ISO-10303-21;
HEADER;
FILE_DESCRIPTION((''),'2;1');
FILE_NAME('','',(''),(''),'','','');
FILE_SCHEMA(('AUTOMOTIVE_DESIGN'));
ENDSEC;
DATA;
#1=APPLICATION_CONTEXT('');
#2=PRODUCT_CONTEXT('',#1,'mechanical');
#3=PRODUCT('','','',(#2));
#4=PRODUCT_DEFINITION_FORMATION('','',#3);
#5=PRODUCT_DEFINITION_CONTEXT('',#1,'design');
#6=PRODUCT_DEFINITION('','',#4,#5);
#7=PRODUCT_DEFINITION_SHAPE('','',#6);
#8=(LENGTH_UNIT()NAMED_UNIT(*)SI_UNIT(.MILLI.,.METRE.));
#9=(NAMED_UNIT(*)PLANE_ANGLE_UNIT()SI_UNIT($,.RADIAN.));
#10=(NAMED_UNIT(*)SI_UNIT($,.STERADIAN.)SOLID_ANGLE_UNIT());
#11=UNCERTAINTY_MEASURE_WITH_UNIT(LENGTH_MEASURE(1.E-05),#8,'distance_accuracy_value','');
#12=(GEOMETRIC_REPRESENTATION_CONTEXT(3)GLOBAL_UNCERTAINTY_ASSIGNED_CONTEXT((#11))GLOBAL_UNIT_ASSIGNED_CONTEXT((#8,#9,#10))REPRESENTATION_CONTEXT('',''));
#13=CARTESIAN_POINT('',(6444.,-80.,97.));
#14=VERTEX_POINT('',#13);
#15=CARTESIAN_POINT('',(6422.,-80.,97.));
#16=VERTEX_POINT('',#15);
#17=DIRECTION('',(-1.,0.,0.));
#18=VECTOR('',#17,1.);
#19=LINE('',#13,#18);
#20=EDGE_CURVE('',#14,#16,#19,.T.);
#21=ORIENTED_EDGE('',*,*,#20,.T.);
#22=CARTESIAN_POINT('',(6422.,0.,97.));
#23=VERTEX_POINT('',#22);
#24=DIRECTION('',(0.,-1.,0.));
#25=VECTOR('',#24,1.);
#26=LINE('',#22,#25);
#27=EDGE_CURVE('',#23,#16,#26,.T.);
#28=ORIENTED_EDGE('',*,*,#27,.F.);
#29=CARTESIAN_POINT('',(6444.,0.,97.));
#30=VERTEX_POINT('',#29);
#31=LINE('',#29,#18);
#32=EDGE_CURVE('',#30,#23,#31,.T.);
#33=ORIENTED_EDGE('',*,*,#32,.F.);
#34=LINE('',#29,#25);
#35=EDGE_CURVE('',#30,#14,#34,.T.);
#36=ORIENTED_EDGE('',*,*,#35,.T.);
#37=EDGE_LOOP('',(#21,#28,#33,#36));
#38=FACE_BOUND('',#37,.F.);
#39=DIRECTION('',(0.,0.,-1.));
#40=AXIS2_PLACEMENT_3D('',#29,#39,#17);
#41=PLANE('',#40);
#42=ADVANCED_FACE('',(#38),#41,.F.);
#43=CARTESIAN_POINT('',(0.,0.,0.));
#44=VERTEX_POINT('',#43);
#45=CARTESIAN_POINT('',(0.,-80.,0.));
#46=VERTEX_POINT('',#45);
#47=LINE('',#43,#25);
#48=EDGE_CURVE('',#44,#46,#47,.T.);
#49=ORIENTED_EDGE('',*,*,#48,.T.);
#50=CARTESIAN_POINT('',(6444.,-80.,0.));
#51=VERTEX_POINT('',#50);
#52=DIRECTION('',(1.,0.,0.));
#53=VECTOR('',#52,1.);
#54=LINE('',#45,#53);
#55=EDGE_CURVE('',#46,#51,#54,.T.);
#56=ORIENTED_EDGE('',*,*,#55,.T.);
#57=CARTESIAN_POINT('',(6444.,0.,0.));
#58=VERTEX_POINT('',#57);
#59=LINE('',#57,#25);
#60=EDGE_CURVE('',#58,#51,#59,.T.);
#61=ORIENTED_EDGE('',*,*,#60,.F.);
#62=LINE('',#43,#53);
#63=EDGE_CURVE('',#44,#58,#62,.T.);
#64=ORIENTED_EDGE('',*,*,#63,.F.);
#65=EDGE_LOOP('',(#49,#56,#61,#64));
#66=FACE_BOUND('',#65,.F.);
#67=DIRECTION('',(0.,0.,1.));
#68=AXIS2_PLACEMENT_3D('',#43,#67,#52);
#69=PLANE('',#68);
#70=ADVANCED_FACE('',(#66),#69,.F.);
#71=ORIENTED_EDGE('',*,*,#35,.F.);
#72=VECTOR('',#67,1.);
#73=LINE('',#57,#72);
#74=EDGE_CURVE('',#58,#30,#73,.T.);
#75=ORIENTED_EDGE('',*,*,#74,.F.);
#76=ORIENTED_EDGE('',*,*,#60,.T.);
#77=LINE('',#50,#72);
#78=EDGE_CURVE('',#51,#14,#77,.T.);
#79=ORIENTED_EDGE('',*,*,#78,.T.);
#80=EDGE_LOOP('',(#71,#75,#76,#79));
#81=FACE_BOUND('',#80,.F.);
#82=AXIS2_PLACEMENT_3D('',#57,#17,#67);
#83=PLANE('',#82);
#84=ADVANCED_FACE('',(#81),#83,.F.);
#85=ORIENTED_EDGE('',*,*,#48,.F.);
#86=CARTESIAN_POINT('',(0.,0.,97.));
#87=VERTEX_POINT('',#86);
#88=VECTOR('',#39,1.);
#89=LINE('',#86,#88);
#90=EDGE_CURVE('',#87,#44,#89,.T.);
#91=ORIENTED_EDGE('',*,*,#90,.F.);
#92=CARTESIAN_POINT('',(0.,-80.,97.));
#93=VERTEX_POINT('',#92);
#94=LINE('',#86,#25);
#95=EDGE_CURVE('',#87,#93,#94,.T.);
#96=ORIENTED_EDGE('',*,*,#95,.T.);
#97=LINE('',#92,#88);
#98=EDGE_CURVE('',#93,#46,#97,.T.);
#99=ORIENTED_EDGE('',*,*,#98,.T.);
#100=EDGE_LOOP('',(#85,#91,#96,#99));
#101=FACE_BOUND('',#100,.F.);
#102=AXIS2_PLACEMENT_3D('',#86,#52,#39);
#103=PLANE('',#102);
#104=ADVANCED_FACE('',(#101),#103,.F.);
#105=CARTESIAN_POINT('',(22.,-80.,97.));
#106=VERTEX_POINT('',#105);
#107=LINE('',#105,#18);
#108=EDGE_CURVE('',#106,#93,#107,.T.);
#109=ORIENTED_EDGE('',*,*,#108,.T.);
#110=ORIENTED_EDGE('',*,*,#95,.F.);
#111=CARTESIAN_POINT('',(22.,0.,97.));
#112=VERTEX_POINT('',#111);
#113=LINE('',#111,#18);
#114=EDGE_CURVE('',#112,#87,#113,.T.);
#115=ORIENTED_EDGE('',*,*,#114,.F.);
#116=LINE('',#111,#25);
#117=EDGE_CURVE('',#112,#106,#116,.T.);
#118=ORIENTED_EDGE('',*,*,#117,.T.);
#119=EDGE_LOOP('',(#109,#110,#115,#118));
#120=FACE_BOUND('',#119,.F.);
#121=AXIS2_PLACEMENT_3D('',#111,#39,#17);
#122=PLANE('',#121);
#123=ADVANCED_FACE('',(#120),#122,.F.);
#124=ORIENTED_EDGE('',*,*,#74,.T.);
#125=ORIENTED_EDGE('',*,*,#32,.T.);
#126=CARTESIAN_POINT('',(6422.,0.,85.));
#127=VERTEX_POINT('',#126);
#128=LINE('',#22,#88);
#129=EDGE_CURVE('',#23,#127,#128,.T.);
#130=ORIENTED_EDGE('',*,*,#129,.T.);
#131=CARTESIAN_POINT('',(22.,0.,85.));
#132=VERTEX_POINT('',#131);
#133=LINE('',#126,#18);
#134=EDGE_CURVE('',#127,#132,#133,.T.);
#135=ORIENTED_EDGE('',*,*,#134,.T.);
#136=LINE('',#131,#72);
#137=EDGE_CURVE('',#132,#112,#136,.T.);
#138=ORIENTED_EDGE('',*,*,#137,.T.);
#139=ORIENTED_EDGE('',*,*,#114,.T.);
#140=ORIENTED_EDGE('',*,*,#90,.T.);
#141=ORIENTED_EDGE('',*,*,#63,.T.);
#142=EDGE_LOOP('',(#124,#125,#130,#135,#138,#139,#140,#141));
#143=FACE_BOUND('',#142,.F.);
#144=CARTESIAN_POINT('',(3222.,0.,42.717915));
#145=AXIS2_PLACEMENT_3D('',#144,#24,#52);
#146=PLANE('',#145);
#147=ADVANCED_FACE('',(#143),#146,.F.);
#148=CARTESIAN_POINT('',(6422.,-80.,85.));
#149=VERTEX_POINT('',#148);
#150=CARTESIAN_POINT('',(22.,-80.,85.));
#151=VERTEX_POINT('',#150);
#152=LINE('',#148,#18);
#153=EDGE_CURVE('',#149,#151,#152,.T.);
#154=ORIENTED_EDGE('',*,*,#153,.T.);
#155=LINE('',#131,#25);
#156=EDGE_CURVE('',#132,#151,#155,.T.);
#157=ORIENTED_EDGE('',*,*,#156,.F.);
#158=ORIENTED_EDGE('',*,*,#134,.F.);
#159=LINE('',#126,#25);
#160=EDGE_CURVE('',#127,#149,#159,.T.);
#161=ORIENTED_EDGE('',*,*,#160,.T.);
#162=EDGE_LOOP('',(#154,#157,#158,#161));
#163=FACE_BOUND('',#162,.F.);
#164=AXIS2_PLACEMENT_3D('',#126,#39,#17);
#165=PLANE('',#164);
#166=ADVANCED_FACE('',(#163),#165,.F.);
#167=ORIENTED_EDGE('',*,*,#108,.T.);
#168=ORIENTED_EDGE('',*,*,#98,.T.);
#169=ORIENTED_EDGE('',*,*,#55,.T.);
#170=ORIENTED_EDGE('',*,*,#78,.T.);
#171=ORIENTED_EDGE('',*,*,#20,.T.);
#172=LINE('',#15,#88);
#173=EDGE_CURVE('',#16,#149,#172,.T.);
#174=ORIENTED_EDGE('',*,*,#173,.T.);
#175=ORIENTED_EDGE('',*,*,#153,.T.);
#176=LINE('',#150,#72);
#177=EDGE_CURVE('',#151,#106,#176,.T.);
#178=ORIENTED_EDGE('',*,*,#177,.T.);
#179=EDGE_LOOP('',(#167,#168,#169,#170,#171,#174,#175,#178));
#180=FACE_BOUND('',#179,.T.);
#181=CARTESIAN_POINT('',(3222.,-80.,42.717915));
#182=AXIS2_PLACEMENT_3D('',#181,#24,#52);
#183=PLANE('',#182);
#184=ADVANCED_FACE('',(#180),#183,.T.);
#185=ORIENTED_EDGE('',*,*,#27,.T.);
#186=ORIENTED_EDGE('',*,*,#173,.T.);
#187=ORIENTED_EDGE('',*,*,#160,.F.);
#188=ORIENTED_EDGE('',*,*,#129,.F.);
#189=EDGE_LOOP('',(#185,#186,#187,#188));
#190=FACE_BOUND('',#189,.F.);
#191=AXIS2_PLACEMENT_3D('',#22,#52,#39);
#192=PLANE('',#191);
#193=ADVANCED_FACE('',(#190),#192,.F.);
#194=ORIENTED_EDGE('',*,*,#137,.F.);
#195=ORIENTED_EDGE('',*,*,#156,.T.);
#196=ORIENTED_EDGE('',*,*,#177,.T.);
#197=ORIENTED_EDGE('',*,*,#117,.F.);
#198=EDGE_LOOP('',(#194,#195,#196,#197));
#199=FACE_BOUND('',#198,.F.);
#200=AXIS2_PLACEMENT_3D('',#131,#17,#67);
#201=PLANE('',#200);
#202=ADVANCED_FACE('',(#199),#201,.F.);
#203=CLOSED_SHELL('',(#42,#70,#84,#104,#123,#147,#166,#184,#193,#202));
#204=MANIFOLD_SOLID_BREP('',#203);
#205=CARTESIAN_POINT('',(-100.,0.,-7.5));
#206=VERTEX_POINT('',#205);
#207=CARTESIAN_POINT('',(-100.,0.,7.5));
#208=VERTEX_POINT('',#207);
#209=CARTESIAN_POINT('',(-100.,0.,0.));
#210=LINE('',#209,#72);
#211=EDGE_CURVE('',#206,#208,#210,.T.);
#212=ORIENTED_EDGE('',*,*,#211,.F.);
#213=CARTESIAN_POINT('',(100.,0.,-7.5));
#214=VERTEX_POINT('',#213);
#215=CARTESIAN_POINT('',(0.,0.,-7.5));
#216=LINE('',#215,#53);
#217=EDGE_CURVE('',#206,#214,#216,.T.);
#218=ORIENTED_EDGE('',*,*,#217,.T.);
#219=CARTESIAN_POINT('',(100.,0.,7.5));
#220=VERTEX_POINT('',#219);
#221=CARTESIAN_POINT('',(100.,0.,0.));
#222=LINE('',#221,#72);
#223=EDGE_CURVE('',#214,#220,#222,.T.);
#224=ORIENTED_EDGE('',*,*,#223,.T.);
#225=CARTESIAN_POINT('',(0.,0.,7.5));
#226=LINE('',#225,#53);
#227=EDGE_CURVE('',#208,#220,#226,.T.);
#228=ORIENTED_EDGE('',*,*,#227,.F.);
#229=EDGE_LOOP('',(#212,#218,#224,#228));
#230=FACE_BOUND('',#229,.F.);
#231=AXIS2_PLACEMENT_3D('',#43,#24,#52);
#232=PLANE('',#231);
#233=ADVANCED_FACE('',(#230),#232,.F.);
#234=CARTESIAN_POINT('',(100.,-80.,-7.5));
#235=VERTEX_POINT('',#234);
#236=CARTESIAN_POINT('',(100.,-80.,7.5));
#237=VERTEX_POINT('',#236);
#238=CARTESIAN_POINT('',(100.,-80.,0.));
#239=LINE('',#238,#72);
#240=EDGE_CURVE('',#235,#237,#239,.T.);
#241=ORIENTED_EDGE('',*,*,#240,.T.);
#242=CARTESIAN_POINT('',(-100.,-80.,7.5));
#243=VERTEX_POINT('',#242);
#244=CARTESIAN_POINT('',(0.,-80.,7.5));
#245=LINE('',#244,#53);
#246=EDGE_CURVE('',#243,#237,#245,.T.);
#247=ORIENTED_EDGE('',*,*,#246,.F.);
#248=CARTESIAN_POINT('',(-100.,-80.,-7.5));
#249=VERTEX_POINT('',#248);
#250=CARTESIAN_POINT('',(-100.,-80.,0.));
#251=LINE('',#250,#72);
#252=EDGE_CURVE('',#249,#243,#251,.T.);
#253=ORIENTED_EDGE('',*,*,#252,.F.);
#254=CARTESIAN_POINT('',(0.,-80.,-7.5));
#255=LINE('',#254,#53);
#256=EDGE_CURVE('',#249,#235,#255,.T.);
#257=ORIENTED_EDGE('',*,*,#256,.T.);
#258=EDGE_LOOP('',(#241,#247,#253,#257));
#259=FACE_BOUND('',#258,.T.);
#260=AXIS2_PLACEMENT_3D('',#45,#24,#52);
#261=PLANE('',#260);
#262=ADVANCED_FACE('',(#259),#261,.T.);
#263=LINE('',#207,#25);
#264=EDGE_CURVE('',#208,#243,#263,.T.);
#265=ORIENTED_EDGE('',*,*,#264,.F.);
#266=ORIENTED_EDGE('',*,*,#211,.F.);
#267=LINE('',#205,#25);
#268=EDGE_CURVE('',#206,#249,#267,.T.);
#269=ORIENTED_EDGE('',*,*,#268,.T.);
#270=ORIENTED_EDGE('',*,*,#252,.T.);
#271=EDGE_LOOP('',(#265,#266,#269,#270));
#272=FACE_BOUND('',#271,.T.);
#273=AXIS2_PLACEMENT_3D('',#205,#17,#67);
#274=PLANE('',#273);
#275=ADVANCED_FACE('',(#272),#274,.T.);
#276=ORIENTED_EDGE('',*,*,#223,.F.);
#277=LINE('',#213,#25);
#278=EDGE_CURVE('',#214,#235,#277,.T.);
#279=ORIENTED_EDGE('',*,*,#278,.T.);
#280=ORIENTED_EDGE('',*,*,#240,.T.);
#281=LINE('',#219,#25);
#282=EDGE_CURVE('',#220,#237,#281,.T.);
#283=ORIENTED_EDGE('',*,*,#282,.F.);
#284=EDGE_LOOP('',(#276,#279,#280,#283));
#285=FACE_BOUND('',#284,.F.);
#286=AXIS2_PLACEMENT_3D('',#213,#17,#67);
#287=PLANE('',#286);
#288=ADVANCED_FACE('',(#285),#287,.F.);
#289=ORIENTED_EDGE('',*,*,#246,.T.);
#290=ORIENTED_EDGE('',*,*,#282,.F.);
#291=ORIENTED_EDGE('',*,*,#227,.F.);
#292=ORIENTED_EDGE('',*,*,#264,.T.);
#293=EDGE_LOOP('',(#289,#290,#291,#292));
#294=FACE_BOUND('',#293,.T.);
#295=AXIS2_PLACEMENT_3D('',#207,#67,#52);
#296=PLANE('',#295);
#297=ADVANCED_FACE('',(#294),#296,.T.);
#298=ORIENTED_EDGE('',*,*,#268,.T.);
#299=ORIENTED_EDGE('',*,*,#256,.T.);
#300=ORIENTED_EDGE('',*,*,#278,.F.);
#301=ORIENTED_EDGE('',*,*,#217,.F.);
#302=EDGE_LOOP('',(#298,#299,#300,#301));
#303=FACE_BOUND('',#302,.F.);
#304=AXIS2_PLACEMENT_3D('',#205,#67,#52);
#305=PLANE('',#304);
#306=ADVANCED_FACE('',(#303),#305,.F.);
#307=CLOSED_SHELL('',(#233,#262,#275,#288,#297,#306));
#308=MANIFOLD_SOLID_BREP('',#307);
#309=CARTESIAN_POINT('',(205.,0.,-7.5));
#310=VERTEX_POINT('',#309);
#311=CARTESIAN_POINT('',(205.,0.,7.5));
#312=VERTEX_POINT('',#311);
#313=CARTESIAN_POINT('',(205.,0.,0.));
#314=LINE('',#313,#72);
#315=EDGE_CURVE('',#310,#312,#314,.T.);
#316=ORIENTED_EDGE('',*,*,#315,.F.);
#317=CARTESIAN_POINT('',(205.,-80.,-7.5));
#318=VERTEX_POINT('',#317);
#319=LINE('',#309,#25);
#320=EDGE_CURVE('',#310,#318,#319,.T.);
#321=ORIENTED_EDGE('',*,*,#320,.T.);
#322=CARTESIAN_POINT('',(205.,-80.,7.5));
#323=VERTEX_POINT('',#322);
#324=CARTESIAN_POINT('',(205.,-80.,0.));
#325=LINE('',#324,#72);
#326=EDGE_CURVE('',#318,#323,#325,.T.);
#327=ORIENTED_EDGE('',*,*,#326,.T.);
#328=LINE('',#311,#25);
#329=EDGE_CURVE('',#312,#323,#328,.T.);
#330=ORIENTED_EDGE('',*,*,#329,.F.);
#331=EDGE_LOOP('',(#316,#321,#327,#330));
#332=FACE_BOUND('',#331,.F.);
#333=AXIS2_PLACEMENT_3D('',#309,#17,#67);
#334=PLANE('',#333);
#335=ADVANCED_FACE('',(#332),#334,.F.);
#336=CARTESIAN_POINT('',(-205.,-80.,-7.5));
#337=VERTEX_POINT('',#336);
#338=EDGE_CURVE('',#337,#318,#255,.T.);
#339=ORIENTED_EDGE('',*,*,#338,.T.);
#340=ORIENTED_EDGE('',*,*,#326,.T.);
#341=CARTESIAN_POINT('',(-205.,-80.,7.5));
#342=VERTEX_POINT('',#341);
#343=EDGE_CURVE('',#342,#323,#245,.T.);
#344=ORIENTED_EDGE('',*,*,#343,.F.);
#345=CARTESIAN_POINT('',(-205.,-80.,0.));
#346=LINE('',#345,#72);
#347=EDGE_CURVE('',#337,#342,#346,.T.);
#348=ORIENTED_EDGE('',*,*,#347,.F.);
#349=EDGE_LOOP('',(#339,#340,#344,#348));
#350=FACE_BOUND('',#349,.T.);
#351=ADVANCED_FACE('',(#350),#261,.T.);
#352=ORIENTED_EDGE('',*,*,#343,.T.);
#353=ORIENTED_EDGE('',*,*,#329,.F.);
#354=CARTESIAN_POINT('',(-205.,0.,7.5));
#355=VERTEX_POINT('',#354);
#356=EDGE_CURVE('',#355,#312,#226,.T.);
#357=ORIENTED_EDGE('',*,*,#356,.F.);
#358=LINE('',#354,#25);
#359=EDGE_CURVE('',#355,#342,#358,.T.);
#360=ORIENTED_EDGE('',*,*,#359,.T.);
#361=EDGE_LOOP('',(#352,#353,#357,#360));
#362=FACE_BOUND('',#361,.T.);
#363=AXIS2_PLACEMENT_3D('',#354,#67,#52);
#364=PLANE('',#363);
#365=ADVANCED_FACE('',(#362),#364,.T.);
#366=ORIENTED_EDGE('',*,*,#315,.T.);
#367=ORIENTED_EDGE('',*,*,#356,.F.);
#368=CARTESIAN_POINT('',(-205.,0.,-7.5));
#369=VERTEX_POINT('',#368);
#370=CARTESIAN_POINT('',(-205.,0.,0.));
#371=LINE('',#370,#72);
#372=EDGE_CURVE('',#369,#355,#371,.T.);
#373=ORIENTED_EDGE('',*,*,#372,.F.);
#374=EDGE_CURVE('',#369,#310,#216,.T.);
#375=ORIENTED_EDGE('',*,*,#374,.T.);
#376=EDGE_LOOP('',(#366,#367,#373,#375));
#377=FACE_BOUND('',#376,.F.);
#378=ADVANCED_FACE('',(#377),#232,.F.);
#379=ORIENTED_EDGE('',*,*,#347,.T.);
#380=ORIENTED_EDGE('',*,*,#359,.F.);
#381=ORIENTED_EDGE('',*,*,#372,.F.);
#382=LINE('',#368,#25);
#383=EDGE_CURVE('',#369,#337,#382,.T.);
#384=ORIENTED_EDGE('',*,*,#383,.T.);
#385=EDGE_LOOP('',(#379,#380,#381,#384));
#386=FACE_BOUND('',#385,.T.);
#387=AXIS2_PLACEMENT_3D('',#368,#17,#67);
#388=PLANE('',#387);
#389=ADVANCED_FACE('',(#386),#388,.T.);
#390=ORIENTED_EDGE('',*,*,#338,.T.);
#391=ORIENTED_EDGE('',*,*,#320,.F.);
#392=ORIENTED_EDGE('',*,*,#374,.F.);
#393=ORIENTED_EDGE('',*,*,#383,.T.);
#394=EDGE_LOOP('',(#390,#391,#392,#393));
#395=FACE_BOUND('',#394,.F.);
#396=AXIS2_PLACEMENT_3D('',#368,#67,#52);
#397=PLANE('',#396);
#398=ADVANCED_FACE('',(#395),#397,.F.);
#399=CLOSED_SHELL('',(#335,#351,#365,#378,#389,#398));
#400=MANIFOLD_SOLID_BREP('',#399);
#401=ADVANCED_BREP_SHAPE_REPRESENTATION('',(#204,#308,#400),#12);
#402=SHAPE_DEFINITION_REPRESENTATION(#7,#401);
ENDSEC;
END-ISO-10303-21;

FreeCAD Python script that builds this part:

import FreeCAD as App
import Part
import Sketcher


def add_polygon(sketch, points):
    """Adds a closed chain of lines whose ends are joined by coincident constraints."""
    first, n = sketch.GeometryCount, len(points)
    for a, b in zip(points, points[1:] + points[:1]):
        sketch.addGeometry(Part.LineSegment(App.Vector(*a, 0), App.Vector(*b, 0)), False)
    for i in range(n):
        sketch.addConstraint(Sketcher.Constraint("Coincident", first + i, 2, first + (i + 1) % n, 1))

doc = App.newDocument("Part")
body = doc.addObject("PartDesign::Body", "Body")

sketch1 = body.newObject("Sketcher::SketchObject", "Sketch")
sketch1.AttachmentSupport = (doc.getObject("XZ_Plane"), [""])
sketch1.MapMode = "FlatFace"
add_polygon(sketch1, [(22, 97), (0, 97), (0, 0), (6444, 0), (6444, 97), (6422, 97), (6422, 85), (22, 85)])
sketch1.addConstraint(Sketcher.Constraint("Horizontal", 0))
sketch1.addConstraint(Sketcher.Constraint("Vertical", 1))
sketch1.addConstraint(Sketcher.Constraint("Horizontal", 2))
sketch1.addConstraint(Sketcher.Constraint("Vertical", 3))
sketch1.addConstraint(Sketcher.Constraint("Horizontal", 4))
sketch1.addConstraint(Sketcher.Constraint("Vertical", 5))
sketch1.addConstraint(Sketcher.Constraint("Horizontal", 6))
sketch1.addConstraint(Sketcher.Constraint("Vertical", 7))
sketch1.addConstraint(Sketcher.Constraint("Coincident", 1, 2, -1, 1))
sketch1.addConstraint(Sketcher.Constraint("Horizontal", 0, 2, 3, 2))
sketch1.addConstraint(Sketcher.Constraint("Equal", 0, 4))
sketch1.addConstraint(Sketcher.Constraint("DistanceX", 0, 2, 0, 1, 22.0))
sketch1.addConstraint(Sketcher.Constraint("DistanceX", 2, 1, 2, 2, 6444.0))
sketch1.addConstraint(Sketcher.Constraint("DistanceY", 1, 2, 1, 1, 97.0))
sketch1.addConstraint(Sketcher.Constraint("DistanceY", 5, 2, 5, 1, 12.0))
pad1 = body.newObject("PartDesign::Pad", "Pad")
pad1.Profile = sketch1
pad1.Length = 80
body2 = doc.addObject("PartDesign::Body", "Body001")

sketch2 = body2.newObject("Sketcher::SketchObject", "Sketch001")
sketch2.AttachmentSupport = (doc.getObject("XZ_Plane001"), [""])
sketch2.MapMode = "FlatFace"
add_polygon(sketch2, [(-205, 8), (-205, -8), (205, -8), (205, 8)])
sketch2.addConstraint(Sketcher.Constraint("Vertical", 0))
sketch2.addConstraint(Sketcher.Constraint("Horizontal", 1))
sketch2.addConstraint(Sketcher.Constraint("Vertical", 2))
sketch2.addConstraint(Sketcher.Constraint("Horizontal", 3))
sketch2.addConstraint(Sketcher.Constraint("Symmetric", 0, 2, 2, 2, -1, 1))
sketch2.addConstraint(Sketcher.Constraint("DistanceX", 1, 1, 1, 2, 410.0))
sketch2.addConstraint(Sketcher.Constraint("DistanceY", 0, 2, 0, 1, 15.0))
pad2 = body2.newObject("PartDesign::Pad", "Pad001")
pad2.Profile = sketch2
pad2.Length = 80
body3 = doc.addObject("PartDesign::Body", "Body002")

sketch3 = body3.newObject("Sketcher::SketchObject", "Sketch002")
sketch3.AttachmentSupport = (doc.getObject("XZ_Plane002"), [""])
sketch3.MapMode = "FlatFace"
add_polygon(sketch3, [(-100, 8), (-100, -8), (100, -8), (100, 8)])
sketch3.addConstraint(Sketcher.Constraint("Vertical", 0))
sketch3.addConstraint(Sketcher.Constraint("Horizontal", 1))
sketch3.addConstraint(Sketcher.Constraint("Vertical", 2))
sketch3.addConstraint(Sketcher.Constraint("Horizontal", 3))
sketch3.addConstraint(Sketcher.Constraint("Symmetric", 0, 2, 2, 2, -1, 1))
sketch3.addConstraint(Sketcher.Constraint("DistanceX", 1, 1, 1, 2, 200.0))
sketch3.addConstraint(Sketcher.Constraint("DistanceY", 0, 2, 0, 1, 15.0))
pad3 = body3.newObject("PartDesign::Pad", "Pad002")
pad3.Profile = sketch3
pad3.Length = 80

doc.recompute()
